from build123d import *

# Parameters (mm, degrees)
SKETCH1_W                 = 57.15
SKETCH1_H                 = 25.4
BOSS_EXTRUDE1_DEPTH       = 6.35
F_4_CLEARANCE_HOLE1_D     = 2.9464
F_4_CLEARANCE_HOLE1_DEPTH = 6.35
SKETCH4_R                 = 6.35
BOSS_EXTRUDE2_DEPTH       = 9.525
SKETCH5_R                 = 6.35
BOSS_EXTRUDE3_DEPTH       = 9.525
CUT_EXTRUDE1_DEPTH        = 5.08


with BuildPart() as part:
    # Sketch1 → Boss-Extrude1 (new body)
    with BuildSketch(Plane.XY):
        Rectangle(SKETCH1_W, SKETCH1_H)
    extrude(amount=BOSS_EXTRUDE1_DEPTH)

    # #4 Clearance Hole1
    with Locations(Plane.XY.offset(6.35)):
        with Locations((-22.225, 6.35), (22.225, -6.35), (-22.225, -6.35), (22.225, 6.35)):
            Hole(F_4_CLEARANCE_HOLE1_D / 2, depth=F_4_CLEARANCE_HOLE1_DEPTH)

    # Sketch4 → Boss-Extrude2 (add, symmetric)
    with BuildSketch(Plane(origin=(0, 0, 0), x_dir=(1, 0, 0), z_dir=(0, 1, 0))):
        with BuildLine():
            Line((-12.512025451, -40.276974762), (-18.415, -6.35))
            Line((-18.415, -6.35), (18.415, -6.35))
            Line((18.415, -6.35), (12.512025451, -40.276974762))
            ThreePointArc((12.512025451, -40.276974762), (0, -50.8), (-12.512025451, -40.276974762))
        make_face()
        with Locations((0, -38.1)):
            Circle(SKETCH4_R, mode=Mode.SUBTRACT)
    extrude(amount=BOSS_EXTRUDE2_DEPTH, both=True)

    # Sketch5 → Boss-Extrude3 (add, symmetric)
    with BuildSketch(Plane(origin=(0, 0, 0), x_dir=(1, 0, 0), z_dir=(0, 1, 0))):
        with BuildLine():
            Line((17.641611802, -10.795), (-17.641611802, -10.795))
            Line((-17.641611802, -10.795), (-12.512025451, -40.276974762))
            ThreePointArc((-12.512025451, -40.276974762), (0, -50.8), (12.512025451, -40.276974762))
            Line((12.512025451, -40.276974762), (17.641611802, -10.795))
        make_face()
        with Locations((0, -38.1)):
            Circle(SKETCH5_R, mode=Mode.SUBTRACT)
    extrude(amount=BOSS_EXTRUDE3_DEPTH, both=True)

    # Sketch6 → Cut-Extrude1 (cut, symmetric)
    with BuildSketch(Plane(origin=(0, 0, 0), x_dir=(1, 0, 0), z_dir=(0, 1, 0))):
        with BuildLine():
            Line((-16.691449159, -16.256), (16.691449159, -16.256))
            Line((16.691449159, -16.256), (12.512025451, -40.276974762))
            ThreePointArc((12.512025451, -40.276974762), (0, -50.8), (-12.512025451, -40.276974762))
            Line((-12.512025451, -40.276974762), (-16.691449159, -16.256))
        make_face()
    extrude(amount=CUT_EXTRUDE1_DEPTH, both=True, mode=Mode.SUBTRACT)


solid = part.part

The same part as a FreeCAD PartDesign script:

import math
import FreeCAD as App
import Part
import Sketcher

V = App.Vector
Q = App.Units.Quantity


def add_polygon(sketch, points):
    """Adds a closed chain of lines whose ends are joined by coincident constraints."""
    first, n = sketch.GeometryCount, len(points)
    for a, b in zip(points, points[1:] + points[:1]):
        sketch.addGeometry(Part.LineSegment(App.Vector(*a, 0), App.Vector(*b, 0)), False)
    for i in range(n):
        sketch.addConstraint(Sketcher.Constraint("Coincident", first + i, 2, first + (i + 1) % n, 1))

doc = App.newDocument("Part")
body = doc.addObject("PartDesign::Body", "Body")

sketch1 = body.newObject("Sketcher::SketchObject", "Sketch")
sketch1.AttachmentSupport = (doc.getObject("XY_Plane"), [""])
sketch1.MapMode = "FlatFace"
add_polygon(sketch1, [(-28.575, 12.7), (-28.575, -12.7), (28.575, -12.7), (28.575, 12.7)])
sketch1.addConstraint(Sketcher.Constraint("Vertical", 0))
sketch1.addConstraint(Sketcher.Constraint("Horizontal", 1))
sketch1.addConstraint(Sketcher.Constraint("Vertical", 2))
sketch1.addConstraint(Sketcher.Constraint("Horizontal", 3))
sketch1.addConstraint(Sketcher.Constraint("Symmetric", 0, 2, 2, 2, -1, 1))
sketch1.addConstraint(Sketcher.Constraint("DistanceY", 0, 2, 0, 1, Q("1 in")))
sketch1.addConstraint(Sketcher.Constraint("DistanceX", 1, 1, 1, 2, Q("2.25 in")))
pad1 = body.newObject("PartDesign::Pad", "Pad")
pad1.Profile = sketch1
pad1.Length = Q("0.25 in")

sketch2 = body.newObject("Sketcher::SketchObject", "Sketch001")
sketch2.AttachmentSupport = (doc.getObject("XY_Plane"), [""])
sketch2.MapMode = "FlatFace"
sketch2.AttachmentOffset = App.Placement(V(0, 0, 0.25 * 25.4), App.Rotation())
sketch2.addGeometry(Part.Circle(V(-22.225, 6.35, 0), V(0, 0, 1), 1.4732), False)
sketch2.addGeometry(Part.Circle(V(22.225, -6.35, 0), V(0, 0, 1), 1.4732), False)
sketch2.addGeometry(Part.Circle(V(-22.225, -6.35, 0), V(0, 0, 1), 1.4732), False)
sketch2.addGeometry(Part.Circle(V(22.225, 6.35, 0), V(0, 0, 1), 1.4732), False)
sketch2.addConstraint(Sketcher.Constraint("Equal", 0, 1))
sketch2.addConstraint(Sketcher.Constraint("Equal", 1, 2))
sketch2.addConstraint(Sketcher.Constraint("Equal", 2, 3))
sketch2.addConstraint(Sketcher.Constraint("Symmetric", 0, 3, 1, 3, -1, 1))
sketch2.addConstraint(Sketcher.Constraint("Symmetric", 2, 3, 3, 3, -1, 1))
sketch2.addConstraint(Sketcher.Constraint("Symmetric", 1, 3, 2, 3, -2))
sketch2.addConstraint(Sketcher.Constraint("Diameter", 0, Q("0.116 in")))
sketch2.addConstraint(Sketcher.Constraint("DistanceY", 1, 3, 0, 3, Q("0.5 in")))
sketch2.addConstraint(Sketcher.Constraint("DistanceX", 0, 3, 1, 3, Q("1.75 in")))
doc.recompute()
hole = body.newObject("PartDesign::Hole", "Hole")
hole.Profile = sketch2
hole.ThreadType = "None"
hole.Diameter = Q("0.116 in")
hole.DepthType = "Dimension"
hole.Depth = Q("0.25 in")
hole.DrillPoint = "Flat"

sketch3 = body.newObject("Sketcher::SketchObject", "Sketch002")
sketch3.AttachmentSupport = (doc.getObject("XZ_Plane"), [""])
sketch3.MapMode = "FlatFace"
sketch3.addGeometry(Part.LineSegment(V(-18.415, 6.35, 0), V(-12.512025, 40.276975, 0)), False)
sketch3.addGeometry(Part.ArcOfCircle(Part.Circle(V(0, 38.1, 0), V(0, 0, 1), 12.7), math.radians(9.87012), math.radians(170.12988)), False)
sketch3.addGeometry(Part.LineSegment(V(12.512025, 40.276975, 0), V(18.415, 6.35, 0)), False)
sketch3.addGeometry(Part.LineSegment(V(18.415, 6.35, 0), V(-18.415, 6.35, 0)), False)
sketch3.addGeometry(Part.Circle(V(0, 38.1, 0), V(0, 0, 1), 6.35), False)
sketch3.addConstraint(Sketcher.Constraint("Tangent", 0, 2, 1, 2))
sketch3.addConstraint(Sketcher.Constraint("Tangent", 1, 1, 2, 1))
sketch3.addConstraint(Sketcher.Constraint("Coincident", 2, 2, 3, 1))
sketch3.addConstraint(Sketcher.Constraint("Coincident", 3, 2, 0, 1))
sketch3.addConstraint(Sketcher.Constraint("Horizontal", 3))
sketch3.addConstraint(Sketcher.Constraint("Coincident", 4, 3, 1, 3))
sketch3.addConstraint(Sketcher.Constraint("Symmetric", 0, 2, 1, 1, -2))
sketch3.addConstraint(Sketcher.Constraint("Diameter", 4, Q("0.5 in")))
sketch3.addConstraint(Sketcher.Constraint("Radius", 1, Q("0.5 in")))
sketch3.addConstraint(Sketcher.Constraint("DistanceX", 3, 2, 3, 1, Q("1.45 in")))
sketch3.addConstraint(Sketcher.Constraint("DistanceY", -1, 1, 1, 3, Q("1.5 in")))
sketch3.addConstraint(Sketcher.Constraint("DistanceY", -1, 1, 2, 2, Q("0.25 in")))
pad2 = body.newObject("PartDesign::Pad", "Pad001")
pad2.Profile = sketch3
pad2.Length = Q("0.75 in")
pad2.Midplane = True

sketch4 = body.newObject("Sketcher::SketchObject", "Sketch003")
sketch4.AttachmentSupport = (doc.getObject("XZ_Plane"), [""])
sketch4.MapMode = "FlatFace"
sketch4.addGeometry(Part.LineSegment(V(17.641612, 10.795, 0), V(-17.641612, 10.795, 0)), False)
sketch4.addGeometry(Part.LineSegment(V(-17.641612, 10.795, 0), V(-12.512025, 40.276975, 0)), False)
sketch4.addGeometry(Part.ArcOfCircle(Part.Circle(V(0, 38.1, 0), V(0, 0, 1), 12.7), math.radians(9.87012), math.radians(170.12988)), False)
sketch4.addGeometry(Part.LineSegment(V(12.512025, 40.276975, 0), V(17.641612, 10.795, 0)), False)
sketch4.addGeometry(Part.Circle(V(0, 38.1, 0), V(0, 0, 1), 6.35), False)
sketch4.addConstraint(Sketcher.Constraint("Coincident", 0, 2, 1, 1))
sketch4.addConstraint(Sketcher.Constraint("Tangent", 1, 2, 2, 2))
sketch4.addConstraint(Sketcher.Constraint("Tangent", 2, 1, 3, 1))
sketch4.addConstraint(Sketcher.Constraint("Coincident", 3, 2, 0, 1))
sketch4.addConstraint(Sketcher.Constraint("Horizontal", 0))
sketch4.addConstraint(Sketcher.Constraint("Coincident", 4, 3, 2, 3))
sketch4.addConstraint(Sketcher.Constraint("Symmetric", 1, 2, 2, 1, -2))
sketch4.addConstraint(Sketcher.Constraint("Diameter", 4, Q("0.5 in")))
sketch4.addConstraint(Sketcher.Constraint("Radius", 2, Q("0.5 in")))
sketch4.addConstraint(Sketcher.Constraint("DistanceY", -1, 1, 2, 3, Q("1.5 in")))
sketch4.addConstraint(Sketcher.Constraint("DistanceY", -1, 1, 0, 2, Q("0.425 in")))
sketch4.addConstraint(Sketcher.Constraint("DistanceX", 0, 2, 0, 1, Q("35.283224 mm")))
pad3 = body.newObject("PartDesign::Pad", "Pad002")
pad3.Profile = sketch4
pad3.Length = Q("0.75 in")
pad3.Midplane = True

sketch5 = body.newObject("Sketcher::SketchObject", "Sketch004")
sketch5.AttachmentSupport = (doc.getObject("XZ_Plane"), [""])
sketch5.MapMode = "FlatFace"
sketch5.addGeometry(Part.LineSegment(V(16.691449, 16.256, 0), V(-16.691449, 16.256, 0)), False)
sketch5.addGeometry(Part.LineSegment(V(-16.691449, 16.256, 0), V(-12.512025, 40.276975, 0)), False)
sketch5.addGeometry(Part.ArcOfCircle(Part.Circle(V(0, 38.1, 0), V(0, 0, 1), 12.7), math.radians(9.87012), math.radians(170.12988)), False)
sketch5.addGeometry(Part.LineSegment(V(12.512025, 40.276975, 0), V(16.691449, 16.256, 0)), False)
sketch5.addConstraint(Sketcher.Constraint("Coincident", 0, 2, 1, 1))
sketch5.addConstraint(Sketcher.Constraint("Tangent", 1, 2, 2, 2))
sketch5.addConstraint(Sketcher.Constraint("Tangent", 2, 1, 3, 1))
sketch5.addConstraint(Sketcher.Constraint("Coincident", 3, 2, 0, 1))
sketch5.addConstraint(Sketcher.Constraint("Horizontal", 0))
sketch5.addConstraint(Sketcher.Constraint("Symmetric", 1, 2, 2, 1, -2))
sketch5.addConstraint(Sketcher.Constraint("Radius", 2, Q("0.5 in")))
sketch5.addConstraint(Sketcher.Constraint("DistanceY", -1, 1, 2, 3, Q("1.5 in")))
sketch5.addConstraint(Sketcher.Constraint("DistanceY", -1, 1, 0, 2, Q("0.64 in")))
sketch5.addConstraint(Sketcher.Constraint("DistanceX", 0, 2, 0, 1, Q("33.382898 mm")))
pocket1 = body.newObject("PartDesign::Pocket", "Pocket")
pocket1.Profile = sketch5
pocket1.Length = Q("0.4 in")
pocket1.Midplane = True

doc.recompute()
